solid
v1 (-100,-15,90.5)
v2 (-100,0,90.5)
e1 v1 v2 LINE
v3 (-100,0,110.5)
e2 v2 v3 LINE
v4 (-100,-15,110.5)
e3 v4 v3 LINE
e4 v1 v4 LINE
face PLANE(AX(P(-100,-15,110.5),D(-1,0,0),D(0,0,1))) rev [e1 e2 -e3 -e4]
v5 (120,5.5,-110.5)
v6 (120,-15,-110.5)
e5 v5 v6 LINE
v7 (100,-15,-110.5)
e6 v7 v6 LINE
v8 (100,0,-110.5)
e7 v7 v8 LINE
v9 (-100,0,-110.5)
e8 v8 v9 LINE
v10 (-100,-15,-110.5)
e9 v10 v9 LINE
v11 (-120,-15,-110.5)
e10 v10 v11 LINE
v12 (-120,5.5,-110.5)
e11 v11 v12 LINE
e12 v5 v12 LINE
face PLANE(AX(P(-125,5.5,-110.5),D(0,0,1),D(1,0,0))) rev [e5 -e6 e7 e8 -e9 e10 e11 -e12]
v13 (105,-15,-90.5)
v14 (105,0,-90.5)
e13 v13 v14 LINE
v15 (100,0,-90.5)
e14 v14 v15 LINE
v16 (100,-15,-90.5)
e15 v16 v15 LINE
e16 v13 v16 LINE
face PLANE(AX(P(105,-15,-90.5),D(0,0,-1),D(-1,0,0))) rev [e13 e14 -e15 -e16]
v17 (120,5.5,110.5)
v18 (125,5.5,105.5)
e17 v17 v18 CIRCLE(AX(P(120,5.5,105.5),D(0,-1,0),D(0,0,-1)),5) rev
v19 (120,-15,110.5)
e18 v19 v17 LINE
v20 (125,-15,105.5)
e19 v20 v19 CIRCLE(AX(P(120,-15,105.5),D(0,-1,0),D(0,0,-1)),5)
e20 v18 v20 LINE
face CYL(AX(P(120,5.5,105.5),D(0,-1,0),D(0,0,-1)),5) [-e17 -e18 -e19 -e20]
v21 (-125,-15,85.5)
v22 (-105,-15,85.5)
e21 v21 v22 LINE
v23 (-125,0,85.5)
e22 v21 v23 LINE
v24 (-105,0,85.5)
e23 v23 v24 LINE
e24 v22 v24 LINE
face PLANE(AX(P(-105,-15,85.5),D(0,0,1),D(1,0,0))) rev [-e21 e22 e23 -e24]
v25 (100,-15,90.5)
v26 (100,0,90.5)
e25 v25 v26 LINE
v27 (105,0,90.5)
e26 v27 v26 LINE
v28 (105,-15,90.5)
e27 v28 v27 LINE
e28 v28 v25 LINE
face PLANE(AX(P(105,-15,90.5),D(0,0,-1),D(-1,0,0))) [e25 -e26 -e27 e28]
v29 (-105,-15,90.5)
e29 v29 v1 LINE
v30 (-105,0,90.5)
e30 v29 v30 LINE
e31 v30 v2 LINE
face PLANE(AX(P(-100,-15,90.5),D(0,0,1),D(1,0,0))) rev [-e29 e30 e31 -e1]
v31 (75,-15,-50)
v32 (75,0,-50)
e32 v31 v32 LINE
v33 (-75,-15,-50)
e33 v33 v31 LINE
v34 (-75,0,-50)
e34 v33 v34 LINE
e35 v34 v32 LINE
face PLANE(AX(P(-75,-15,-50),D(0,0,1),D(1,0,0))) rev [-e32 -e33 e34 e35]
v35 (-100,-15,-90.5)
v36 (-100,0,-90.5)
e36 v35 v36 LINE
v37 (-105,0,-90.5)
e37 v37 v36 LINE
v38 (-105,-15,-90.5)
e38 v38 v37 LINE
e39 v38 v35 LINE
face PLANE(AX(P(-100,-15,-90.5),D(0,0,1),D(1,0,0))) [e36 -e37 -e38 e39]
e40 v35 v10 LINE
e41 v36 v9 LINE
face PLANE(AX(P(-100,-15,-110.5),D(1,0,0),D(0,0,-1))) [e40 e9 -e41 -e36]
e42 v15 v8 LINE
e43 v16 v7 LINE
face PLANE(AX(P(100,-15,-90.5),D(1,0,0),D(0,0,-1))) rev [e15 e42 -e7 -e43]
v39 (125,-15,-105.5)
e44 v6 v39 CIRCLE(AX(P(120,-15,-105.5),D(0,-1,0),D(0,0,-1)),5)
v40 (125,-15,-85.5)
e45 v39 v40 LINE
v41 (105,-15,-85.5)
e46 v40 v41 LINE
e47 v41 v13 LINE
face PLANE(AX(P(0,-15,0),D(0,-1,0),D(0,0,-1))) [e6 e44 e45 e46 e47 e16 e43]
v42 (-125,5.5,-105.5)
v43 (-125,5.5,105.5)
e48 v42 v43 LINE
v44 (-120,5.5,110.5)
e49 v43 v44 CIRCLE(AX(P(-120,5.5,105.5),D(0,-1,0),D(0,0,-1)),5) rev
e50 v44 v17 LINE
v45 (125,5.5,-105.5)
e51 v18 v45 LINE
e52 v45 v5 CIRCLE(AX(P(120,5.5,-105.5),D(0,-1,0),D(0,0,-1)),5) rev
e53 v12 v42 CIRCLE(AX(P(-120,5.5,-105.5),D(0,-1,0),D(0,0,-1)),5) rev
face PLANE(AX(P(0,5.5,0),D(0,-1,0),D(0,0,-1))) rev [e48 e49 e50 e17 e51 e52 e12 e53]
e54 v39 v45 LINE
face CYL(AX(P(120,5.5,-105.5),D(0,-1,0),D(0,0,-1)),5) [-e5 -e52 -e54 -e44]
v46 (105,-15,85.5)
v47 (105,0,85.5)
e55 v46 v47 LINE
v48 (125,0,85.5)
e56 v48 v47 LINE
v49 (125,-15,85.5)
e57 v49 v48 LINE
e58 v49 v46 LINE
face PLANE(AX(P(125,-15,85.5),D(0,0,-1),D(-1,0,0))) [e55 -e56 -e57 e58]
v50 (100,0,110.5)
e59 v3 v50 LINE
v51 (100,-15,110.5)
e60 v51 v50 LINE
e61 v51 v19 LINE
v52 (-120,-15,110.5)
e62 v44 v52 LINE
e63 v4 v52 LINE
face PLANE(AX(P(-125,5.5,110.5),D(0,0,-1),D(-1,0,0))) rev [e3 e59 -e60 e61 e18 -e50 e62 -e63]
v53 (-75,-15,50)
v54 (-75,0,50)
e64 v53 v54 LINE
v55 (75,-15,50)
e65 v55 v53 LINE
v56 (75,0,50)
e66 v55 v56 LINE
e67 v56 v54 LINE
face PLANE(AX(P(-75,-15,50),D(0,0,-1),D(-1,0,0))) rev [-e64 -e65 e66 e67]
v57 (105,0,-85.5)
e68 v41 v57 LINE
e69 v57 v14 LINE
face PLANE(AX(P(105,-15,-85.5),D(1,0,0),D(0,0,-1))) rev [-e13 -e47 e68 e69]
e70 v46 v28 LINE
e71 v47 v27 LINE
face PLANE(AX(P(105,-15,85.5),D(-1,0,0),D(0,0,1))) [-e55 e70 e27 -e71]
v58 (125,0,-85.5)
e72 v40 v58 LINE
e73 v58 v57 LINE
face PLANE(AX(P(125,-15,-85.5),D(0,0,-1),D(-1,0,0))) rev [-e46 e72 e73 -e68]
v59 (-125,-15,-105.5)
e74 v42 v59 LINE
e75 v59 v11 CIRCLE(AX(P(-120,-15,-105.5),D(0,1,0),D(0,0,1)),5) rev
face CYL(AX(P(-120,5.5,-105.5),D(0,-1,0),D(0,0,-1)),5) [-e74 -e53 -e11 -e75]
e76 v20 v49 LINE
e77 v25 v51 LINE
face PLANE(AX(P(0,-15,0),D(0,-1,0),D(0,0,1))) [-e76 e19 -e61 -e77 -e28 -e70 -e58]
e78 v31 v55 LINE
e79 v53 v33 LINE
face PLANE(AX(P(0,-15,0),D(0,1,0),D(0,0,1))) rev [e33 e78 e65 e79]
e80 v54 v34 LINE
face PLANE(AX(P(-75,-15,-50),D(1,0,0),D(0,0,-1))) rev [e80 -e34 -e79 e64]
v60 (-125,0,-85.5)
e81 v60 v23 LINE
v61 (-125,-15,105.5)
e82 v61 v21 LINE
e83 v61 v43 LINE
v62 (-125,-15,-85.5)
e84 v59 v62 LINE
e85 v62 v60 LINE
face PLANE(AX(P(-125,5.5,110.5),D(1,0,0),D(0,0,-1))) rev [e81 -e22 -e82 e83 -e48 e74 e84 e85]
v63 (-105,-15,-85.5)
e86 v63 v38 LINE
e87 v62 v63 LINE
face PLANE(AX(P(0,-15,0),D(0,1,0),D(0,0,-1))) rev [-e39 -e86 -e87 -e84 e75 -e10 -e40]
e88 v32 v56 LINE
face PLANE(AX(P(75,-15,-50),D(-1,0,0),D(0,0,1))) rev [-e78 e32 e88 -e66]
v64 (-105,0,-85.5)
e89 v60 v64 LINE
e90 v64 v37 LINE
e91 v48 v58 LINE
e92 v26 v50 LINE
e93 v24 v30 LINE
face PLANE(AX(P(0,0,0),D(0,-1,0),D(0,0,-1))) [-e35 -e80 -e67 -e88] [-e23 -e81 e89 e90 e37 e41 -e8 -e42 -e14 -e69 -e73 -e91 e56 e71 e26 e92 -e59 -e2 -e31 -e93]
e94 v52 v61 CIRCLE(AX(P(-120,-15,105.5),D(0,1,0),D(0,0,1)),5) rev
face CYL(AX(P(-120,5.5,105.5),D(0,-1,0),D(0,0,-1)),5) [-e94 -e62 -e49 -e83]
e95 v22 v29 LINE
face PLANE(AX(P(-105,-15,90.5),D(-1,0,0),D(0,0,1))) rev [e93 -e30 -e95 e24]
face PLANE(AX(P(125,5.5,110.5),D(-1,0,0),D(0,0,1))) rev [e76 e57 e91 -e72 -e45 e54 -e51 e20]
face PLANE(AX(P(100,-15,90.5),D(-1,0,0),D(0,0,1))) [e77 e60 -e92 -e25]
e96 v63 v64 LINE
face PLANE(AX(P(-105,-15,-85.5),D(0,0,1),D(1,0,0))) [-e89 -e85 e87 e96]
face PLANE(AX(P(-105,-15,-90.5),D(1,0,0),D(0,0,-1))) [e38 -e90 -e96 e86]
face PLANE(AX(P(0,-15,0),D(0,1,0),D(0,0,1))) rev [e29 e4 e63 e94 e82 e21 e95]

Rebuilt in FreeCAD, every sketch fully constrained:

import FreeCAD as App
import Part
import Sketcher
from FreeCAD import Vector
Q = App.Units.Quantity


def edges_at(feature, points):
    """Names of the edges that pass closest to the given points."""
    edges = feature.Shape.Edges
    near = lambda p: min(range(len(edges)), key=lambda i: edges[i].distToShape(Part.Vertex(*p))[0])
    return sorted({f"Edge{near(p) + 1}" for p in points})

doc = App.newDocument("Part")
body = doc.addObject("PartDesign::Body", "Body")

# Sketch on XZ plane
sketch1 = doc.addObject("Sketcher::SketchObject", "Sketch")
body.addObject(sketch1)
sketch1.AttachmentSupport = (doc.XZ_Plane, [""])
sketch1.MapMode = "FlatFace"
sketch1.addGeometry([
    Part.LineSegment(Vector(-125, -110.5, 0), Vector(-125, 110.5, 0)),
    Part.LineSegment(Vector(-125, 110.5, 0), Vector(125, 110.5, 0)),
    Part.LineSegment(Vector(125, 110.5, 0), Vector(125, -110.5, 0)),
    Part.LineSegment(Vector(125, -110.5, 0), Vector(-125, -110.5, 0)),
], False)
sketch1.addConstraint([
    Sketcher.Constraint("Coincident", 0, 2, 1, 1),
    Sketcher.Constraint("Coincident", 1, 2, 2, 1),
    Sketcher.Constraint("Coincident", 2, 2, 3, 1),
    Sketcher.Constraint("Coincident", 3, 2, 0, 1),
    Sketcher.Constraint("Vertical", 0),
    Sketcher.Constraint("Horizontal", 1),
    Sketcher.Constraint("Vertical", 2),
    Sketcher.Constraint("Horizontal", 3),
    Sketcher.Constraint("Symmetric", 0, 2, 2, 2, -1, 1),
    Sketcher.Constraint("DistanceX", 1, 1, 1, 2, Q("250 mm")),
    Sketcher.Constraint("DistanceY", 0, 1, 0, 2, Q("221 mm")),
])
pad1 = doc.addObject("PartDesign::Pad", "Pad")
body.addObject(pad1)
pad1.Profile = sketch1
pad1.Length = 5.5
pad1.Reversed = True

# Sketch on XZ plane
sketch2 = doc.addObject("Sketcher::SketchObject", "Sketch001")
body.addObject(sketch2)
sketch2.AttachmentSupport = (doc.XZ_Plane, [""])
sketch2.MapMode = "FlatFace"
sketch2.addGeometry([
    Part.LineSegment(Vector(-100, 110.5, 0), Vector(-125, 110.5, 0)),  # 0
    Part.LineSegment(Vector(-125, 110.5, 0), Vector(-125, 85.5, 0)),  # 1
    Part.LineSegment(Vector(-125, 85.5, 0), Vector(-105, 85.5, 0)),  # 2
    Part.LineSegment(Vector(-105, 85.5, 0), Vector(-105, 90.5, 0)),  # 3
    Part.LineSegment(Vector(-105, 90.5, 0), Vector(-100, 90.5, 0)),  # 4
    Part.LineSegment(Vector(-100, 90.5, 0), Vector(-100, 110.5, 0)),  # 5
    Part.LineSegment(Vector(125, -110.5, 0), Vector(125, -85.5, 0)),  # 6
    Part.LineSegment(Vector(125, -85.5, 0), Vector(105, -85.5, 0)),  # 7
    Part.LineSegment(Vector(105, -85.5, 0), Vector(105, -90.5, 0)),  # 8
    Part.LineSegment(Vector(105, -90.5, 0), Vector(100, -90.5, 0)),  # 9
    Part.LineSegment(Vector(100, -90.5, 0), Vector(100, -110.5, 0)),  # 10
    Part.LineSegment(Vector(100, -110.5, 0), Vector(125, -110.5, 0)),  # 11
], False)
sketch2.addConstraint([
    Sketcher.Constraint("Coincident", 0, 2, 1, 1),
    Sketcher.Constraint("Coincident", 1, 2, 2, 1),
    Sketcher.Constraint("Coincident", 2, 2, 3, 1),
    Sketcher.Constraint("Coincident", 3, 2, 4, 1),
    Sketcher.Constraint("Coincident", 4, 2, 5, 1),
    Sketcher.Constraint("Coincident", 5, 2, 0, 1),
    Sketcher.Constraint("Coincident", 6, 2, 7, 1),
    Sketcher.Constraint("Coincident", 7, 2, 8, 1),
    Sketcher.Constraint("Coincident", 8, 2, 9, 1),
    Sketcher.Constraint("Coincident", 9, 2, 10, 1),
    Sketcher.Constraint("Coincident", 10, 2, 11, 1),
    Sketcher.Constraint("Coincident", 11, 2, 6, 1),
    Sketcher.Constraint("Horizontal", 0),
    Sketcher.Constraint("Vertical", 1),
    Sketcher.Constraint("Horizontal", 2),
    Sketcher.Constraint("Vertical", 3),
    Sketcher.Constraint("Horizontal", 4),
    Sketcher.Constraint("Vertical", 5),
    Sketcher.Constraint("Vertical", 6),
    Sketcher.Constraint("Horizontal", 7),
    Sketcher.Constraint("Vertical", 8),
    Sketcher.Constraint("Horizontal", 9),
    Sketcher.Constraint("Vertical", 10),
    Sketcher.Constraint("Horizontal", 11),
    Sketcher.Constraint("Symmetric", 1, 2, 6, 2, -1, 1),
    Sketcher.Constraint("Symmetric", 3, 2, 8, 2, -1, 1),
    Sketcher.Constraint("Symmetric", 5, 2, 10, 2, -1, 1),
    Sketcher.Constraint("Equal", 11, 1),
    Sketcher.Constraint("Equal", 9, 3),
    Sketcher.Constraint("DistanceX", 0, 2, 0, 1, Q("25 mm")),
    Sketcher.Constraint("DistanceX", 2, 1, 2, 2, Q("20 mm")),
    Sketcher.Constraint("DistanceX", 0, 2, -1, 1, Q("125 mm")),
    Sketcher.Constraint("DistanceY", 6, 2, 4, 2, Q("176 mm")),
])
pad2 = doc.addObject("PartDesign::Pad", "Pad001")
body.addObject(pad2)
pad2.Profile = sketch2
pad2.Length = 15
doc.recompute()

mirrored = doc.addObject("PartDesign::Mirrored", "Mirrored")
body.addObject(mirrored)
mirrored.Originals = [pad2]
mirrored.MirrorPlane = (doc.XY_Plane, [""])
body.Tip = mirrored

# Sketch on XZ plane
sketch3 = doc.addObject("Sketcher::SketchObject", "Sketch002")
body.addObject(sketch3)
sketch3.AttachmentSupport = (doc.XZ_Plane, [""])
sketch3.MapMode = "FlatFace"
sketch3.addGeometry([
    Part.LineSegment(Vector(-75, 50, 0), Vector(-75, -50, 0)),
    Part.LineSegment(Vector(-75, -50, 0), Vector(75, -50, 0)),
    Part.LineSegment(Vector(75, -50, 0), Vector(75, 50, 0)),
    Part.LineSegment(Vector(75, 50, 0), Vector(-75, 50, 0)),
], False)
sketch3.addConstraint([
    Sketcher.Constraint("Coincident", 0, 2, 1, 1),
    Sketcher.Constraint("Coincident", 1, 2, 2, 1),
    Sketcher.Constraint("Coincident", 2, 2, 3, 1),
    Sketcher.Constraint("Coincident", 3, 2, 0, 1),
    Sketcher.Constraint("Vertical", 0),
    Sketcher.Constraint("Horizontal", 1),
    Sketcher.Constraint("Vertical", 2),
    Sketcher.Constraint("Horizontal", 3),
    Sketcher.Constraint("Symmetric", 0, 2, 2, 2, -1, 1),
    Sketcher.Constraint("DistanceX", 1, 1, 1, 2, Q("150 mm")),
    Sketcher.Constraint("DistanceY", 0, 2, 0, 1, Q("100 mm")),
])
pad3 = doc.addObject("PartDesign::Pad", "Pad002")
body.addObject(pad3)
pad3.Profile = sketch3
pad3.Length = 15
doc.recompute()

fillet = doc.addObject("PartDesign::Fillet", "Fillet")
body.addObject(fillet)
fillet.Base = (pad3, edges_at(pad3, [
    (125, -4.75, 110.5),
    (-125, -4.75, 110.5),
    (-125, -4.75, -110.5),
    (125, -4.75, -110.5),
]))
fillet.Radius = 5

doc.recompute()
